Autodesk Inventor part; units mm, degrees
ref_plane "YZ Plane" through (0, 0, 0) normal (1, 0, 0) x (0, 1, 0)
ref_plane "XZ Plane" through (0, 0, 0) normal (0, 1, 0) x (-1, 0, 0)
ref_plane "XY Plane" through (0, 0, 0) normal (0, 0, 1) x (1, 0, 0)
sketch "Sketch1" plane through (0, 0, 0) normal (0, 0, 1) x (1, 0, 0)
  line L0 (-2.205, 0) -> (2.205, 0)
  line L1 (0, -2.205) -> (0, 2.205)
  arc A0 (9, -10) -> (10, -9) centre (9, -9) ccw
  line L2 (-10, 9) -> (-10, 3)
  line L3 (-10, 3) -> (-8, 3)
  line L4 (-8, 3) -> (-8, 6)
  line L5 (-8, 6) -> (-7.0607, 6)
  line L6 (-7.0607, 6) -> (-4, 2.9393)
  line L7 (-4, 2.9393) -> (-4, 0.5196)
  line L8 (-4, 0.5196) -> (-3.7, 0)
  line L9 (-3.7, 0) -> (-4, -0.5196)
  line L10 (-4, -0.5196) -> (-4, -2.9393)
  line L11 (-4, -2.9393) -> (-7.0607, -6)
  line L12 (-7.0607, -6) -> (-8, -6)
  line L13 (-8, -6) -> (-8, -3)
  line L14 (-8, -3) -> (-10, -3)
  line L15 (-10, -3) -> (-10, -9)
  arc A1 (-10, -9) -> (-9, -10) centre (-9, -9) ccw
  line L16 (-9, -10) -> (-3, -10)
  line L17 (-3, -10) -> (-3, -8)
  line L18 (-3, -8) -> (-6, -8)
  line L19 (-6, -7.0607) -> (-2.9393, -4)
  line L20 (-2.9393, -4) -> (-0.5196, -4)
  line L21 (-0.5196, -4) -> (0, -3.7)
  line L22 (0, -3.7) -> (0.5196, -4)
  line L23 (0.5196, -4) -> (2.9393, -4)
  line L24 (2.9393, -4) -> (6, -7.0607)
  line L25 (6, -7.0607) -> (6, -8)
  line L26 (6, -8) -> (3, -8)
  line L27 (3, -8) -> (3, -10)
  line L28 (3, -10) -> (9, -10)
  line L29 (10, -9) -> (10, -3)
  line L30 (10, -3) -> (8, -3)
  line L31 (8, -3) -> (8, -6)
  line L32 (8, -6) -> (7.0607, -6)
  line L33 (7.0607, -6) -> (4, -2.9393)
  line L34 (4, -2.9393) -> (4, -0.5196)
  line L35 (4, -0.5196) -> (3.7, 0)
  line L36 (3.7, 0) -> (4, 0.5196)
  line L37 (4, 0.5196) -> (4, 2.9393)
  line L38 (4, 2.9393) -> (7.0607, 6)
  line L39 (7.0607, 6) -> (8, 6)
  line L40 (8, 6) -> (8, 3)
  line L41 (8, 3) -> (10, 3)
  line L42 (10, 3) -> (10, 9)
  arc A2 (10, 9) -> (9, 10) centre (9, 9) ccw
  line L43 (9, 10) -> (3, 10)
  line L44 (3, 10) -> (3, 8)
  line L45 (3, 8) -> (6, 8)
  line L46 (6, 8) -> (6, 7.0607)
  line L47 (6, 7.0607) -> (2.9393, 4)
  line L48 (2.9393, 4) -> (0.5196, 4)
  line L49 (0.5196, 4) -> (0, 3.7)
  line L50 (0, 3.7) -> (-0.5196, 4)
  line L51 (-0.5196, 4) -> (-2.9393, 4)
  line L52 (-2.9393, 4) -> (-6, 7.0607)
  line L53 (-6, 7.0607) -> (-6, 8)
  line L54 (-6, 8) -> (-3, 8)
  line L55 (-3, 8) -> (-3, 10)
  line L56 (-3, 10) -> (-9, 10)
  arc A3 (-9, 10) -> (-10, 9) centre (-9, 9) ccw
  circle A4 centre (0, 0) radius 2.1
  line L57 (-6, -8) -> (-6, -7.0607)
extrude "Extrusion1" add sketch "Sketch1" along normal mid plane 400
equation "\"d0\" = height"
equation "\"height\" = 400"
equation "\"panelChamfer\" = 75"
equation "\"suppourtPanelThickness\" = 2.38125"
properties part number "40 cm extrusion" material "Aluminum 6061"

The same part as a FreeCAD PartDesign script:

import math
import FreeCAD as App
import Part
import Sketcher
Q = App.Units.Quantity

doc = App.newDocument("Part")
body = doc.addObject("PartDesign::Body", "Body")

# Sketch on XY plane
sketch1 = body.newObject("Sketcher::SketchObject", "Sketch")
sketch1.AttachmentSupport = (doc.getObject("XY_Plane"), [""])
sketch1.MapMode = "FlatFace"
sketch1.addGeometry([
    Part.LineSegment(App.Vector(3, -10, 0), App.Vector(9, -10, 0)),  # 0
    Part.ArcOfCircle(Part.Circle(App.Vector(9, -9, 0), App.Vector(0, 0, 1), 1), math.radians(-90), math.radians(0)),  # 1
    Part.LineSegment(App.Vector(10, -9, 0), App.Vector(10, -3, 0)),  # 2
    Part.LineSegment(App.Vector(10, -3, 0), App.Vector(8, -3, 0)),  # 3
    Part.LineSegment(App.Vector(8, -3, 0), App.Vector(8, -6, 0)),  # 4
    Part.LineSegment(App.Vector(8, -6, 0), App.Vector(7.1, -6, 0)),  # 5
    Part.LineSegment(App.Vector(7.1, -6, 0), App.Vector(4, -2.9, 0)),  # 6
    Part.LineSegment(App.Vector(4, -2.9, 0), App.Vector(4, -0.5, 0)),  # 7
    Part.LineSegment(App.Vector(4, -0.5, 0), App.Vector(3.7, 0, 0)),  # 8
    Part.LineSegment(App.Vector(3.7, 0, 0), App.Vector(4, 0.5, 0)),  # 9
    Part.LineSegment(App.Vector(4, 0.5, 0), App.Vector(4, 2.9, 0)),  # 10
    Part.LineSegment(App.Vector(4, 2.9, 0), App.Vector(7.1, 6, 0)),  # 11
    Part.LineSegment(App.Vector(7.1, 6, 0), App.Vector(8, 6, 0)),  # 12
    Part.LineSegment(App.Vector(8, 6, 0), App.Vector(8, 3, 0)),  # 13
    Part.LineSegment(App.Vector(8, 3, 0), App.Vector(10, 3, 0)),  # 14
    Part.LineSegment(App.Vector(10, 3, 0), App.Vector(10, 9, 0)),  # 15
    Part.ArcOfCircle(Part.Circle(App.Vector(9, 9, 0), App.Vector(0, 0, 1), 1), math.radians(0), math.radians(90)),  # 16
    Part.LineSegment(App.Vector(9, 10, 0), App.Vector(3, 10, 0)),  # 17
    Part.LineSegment(App.Vector(3, 10, 0), App.Vector(3, 8, 0)),  # 18
    Part.LineSegment(App.Vector(3, 8, 0), App.Vector(6, 8, 0)),  # 19
    Part.LineSegment(App.Vector(6, 8, 0), App.Vector(6, 7.1, 0)),  # 20
    Part.LineSegment(App.Vector(6, 7.1, 0), App.Vector(2.9, 4, 0)),  # 21
    Part.LineSegment(App.Vector(2.9, 4, 0), App.Vector(0.5, 4, 0)),  # 22
    Part.LineSegment(App.Vector(0.5, 4, 0), App.Vector(0, 3.7, 0)),  # 23
    Part.LineSegment(App.Vector(0, 3.7, 0), App.Vector(-0.5, 4, 0)),  # 24
    Part.LineSegment(App.Vector(-0.5, 4, 0), App.Vector(-2.9, 4, 0)),  # 25
    Part.LineSegment(App.Vector(-2.9, 4, 0), App.Vector(-6, 7.1, 0)),  # 26
    Part.LineSegment(App.Vector(-6, 7.1, 0), App.Vector(-6, 8, 0)),  # 27
    Part.LineSegment(App.Vector(-6, 8, 0), App.Vector(-3, 8, 0)),  # 28
    Part.LineSegment(App.Vector(-3, 8, 0), App.Vector(-3, 10, 0)),  # 29
    Part.LineSegment(App.Vector(-3, 10, 0), App.Vector(-9, 10, 0)),  # 30
    Part.ArcOfCircle(Part.Circle(App.Vector(-9, 9, 0), App.Vector(0, 0, 1), 1), math.radians(90), math.radians(180)),  # 31
    Part.LineSegment(App.Vector(-10, 9, 0), App.Vector(-10, 3, 0)),  # 32
    Part.LineSegment(App.Vector(-10, 3, 0), App.Vector(-8, 3, 0)),  # 33
    Part.LineSegment(App.Vector(-8, 3, 0), App.Vector(-8, 6, 0)),  # 34
    Part.LineSegment(App.Vector(-8, 6, 0), App.Vector(-7.1, 6, 0)),  # 35
    Part.LineSegment(App.Vector(-7.1, 6, 0), App.Vector(-4, 2.9, 0)),  # 36
    Part.LineSegment(App.Vector(-4, 2.9, 0), App.Vector(-4, 0.5, 0)),  # 37
    Part.LineSegment(App.Vector(-4, 0.5, 0), App.Vector(-3.7, 0, 0)),  # 38
    Part.LineSegment(App.Vector(-3.7, 0, 0), App.Vector(-4, -0.5, 0)),  # 39
    Part.LineSegment(App.Vector(-4, -0.5, 0), App.Vector(-4, -2.9, 0)),  # 40
    Part.LineSegment(App.Vector(-4, -2.9, 0), App.Vector(-7.1, -6, 0)),  # 41
    Part.LineSegment(App.Vector(-7.1, -6, 0), App.Vector(-8, -6, 0)),  # 42
    Part.LineSegment(App.Vector(-8, -6, 0), App.Vector(-8, -3, 0)),  # 43
    Part.LineSegment(App.Vector(-8, -3, 0), App.Vector(-10, -3, 0)),  # 44
    Part.LineSegment(App.Vector(-10, -3, 0), App.Vector(-10, -9, 0)),  # 45
    Part.ArcOfCircle(Part.Circle(App.Vector(-9, -9, 0), App.Vector(0, 0, 1), 1), math.radians(180), math.radians(270)),  # 46
    Part.LineSegment(App.Vector(-9, -10, 0), App.Vector(-3, -10, 0)),  # 47
    Part.LineSegment(App.Vector(-3, -10, 0), App.Vector(-3, -8, 0)),  # 48
    Part.LineSegment(App.Vector(-3, -8, 0), App.Vector(-6, -8, 0)),  # 49
    Part.LineSegment(App.Vector(-6, -8, 0), App.Vector(-6, -7.1, 0)),  # 50
    Part.LineSegment(App.Vector(-6, -7.1, 0), App.Vector(-2.9, -4, 0)),  # 51
    Part.LineSegment(App.Vector(-2.9, -4, 0), App.Vector(-0.5, -4, 0)),  # 52
    Part.LineSegment(App.Vector(-0.5, -4, 0), App.Vector(0, -3.7, 0)),  # 53
    Part.LineSegment(App.Vector(0, -3.7, 0), App.Vector(0.5, -4, 0)),  # 54
    Part.LineSegment(App.Vector(0.5, -4, 0), App.Vector(2.9, -4, 0)),  # 55
    Part.LineSegment(App.Vector(2.9, -4, 0), App.Vector(6, -7.1, 0)),  # 56
    Part.LineSegment(App.Vector(6, -7.1, 0), App.Vector(6, -8, 0)),  # 57
    Part.LineSegment(App.Vector(6, -8, 0), App.Vector(3, -8, 0)),  # 58
    Part.LineSegment(App.Vector(3, -8, 0), App.Vector(3, -10, 0)),  # 59
    Part.Circle(App.Vector(0, 0, 0), App.Vector(0, 0, 1), 2.1),  # 60
], False)
sketch1.addConstraint([
    Sketcher.Constraint("Tangent", 0, 2, 1, 1),
    Sketcher.Constraint("Tangent", 1, 2, 2, 1),
    Sketcher.Constraint("Coincident", 2, 2, 3, 1),
    Sketcher.Constraint("Coincident", 3, 2, 4, 1),
    Sketcher.Constraint("Coincident", 4, 2, 5, 1),
    Sketcher.Constraint("Coincident", 5, 2, 6, 1),
    Sketcher.Constraint("Coincident", 6, 2, 7, 1),
    Sketcher.Constraint("Coincident", 7, 2, 8, 1),
    Sketcher.Constraint("Coincident", 8, 2, 9, 1),
    Sketcher.Constraint("Coincident", 9, 2, 10, 1),
    Sketcher.Constraint("Coincident", 10, 2, 11, 1),
    Sketcher.Constraint("Coincident", 11, 2, 12, 1),
    Sketcher.Constraint("Coincident", 12, 2, 13, 1),
    Sketcher.Constraint("Coincident", 13, 2, 14, 1),
    Sketcher.Constraint("Coincident", 14, 2, 15, 1),
    Sketcher.Constraint("Tangent", 15, 2, 16, 1),
    Sketcher.Constraint("Tangent", 16, 2, 17, 1),
    Sketcher.Constraint("Coincident", 17, 2, 18, 1),
    Sketcher.Constraint("Coincident", 18, 2, 19, 1),
    Sketcher.Constraint("Coincident", 19, 2, 20, 1),
    Sketcher.Constraint("Coincident", 20, 2, 21, 1),
    Sketcher.Constraint("Coincident", 21, 2, 22, 1),
    Sketcher.Constraint("Coincident", 22, 2, 23, 1),
    Sketcher.Constraint("Coincident", 23, 2, 24, 1),
    Sketcher.Constraint("Coincident", 24, 2, 25, 1),
    Sketcher.Constraint("Coincident", 25, 2, 26, 1),
    Sketcher.Constraint("Coincident", 26, 2, 27, 1),
    Sketcher.Constraint("Coincident", 27, 2, 28, 1),
    Sketcher.Constraint("Coincident", 28, 2, 29, 1),
    Sketcher.Constraint("Coincident", 29, 2, 30, 1),
    Sketcher.Constraint("Tangent", 30, 2, 31, 1),
    Sketcher.Constraint("Tangent", 31, 2, 32, 1),
    Sketcher.Constraint("Coincident", 32, 2, 33, 1),
    Sketcher.Constraint("Coincident", 33, 2, 34, 1),
    Sketcher.Constraint("Coincident", 34, 2, 35, 1),
    Sketcher.Constraint("Coincident", 35, 2, 36, 1),
    Sketcher.Constraint("Coincident", 36, 2, 37, 1),
    Sketcher.Constraint("Coincident", 37, 2, 38, 1),
    Sketcher.Constraint("Coincident", 38, 2, 39, 1),
    Sketcher.Constraint("Coincident", 39, 2, 40, 1),
    Sketcher.Constraint("Coincident", 40, 2, 41, 1),
    Sketcher.Constraint("Coincident", 41, 2, 42, 1),
    Sketcher.Constraint("Coincident", 42, 2, 43, 1),
    Sketcher.Constraint("Coincident", 43, 2, 44, 1),
    Sketcher.Constraint("Coincident", 44, 2, 45, 1),
    Sketcher.Constraint("Tangent", 45, 2, 46, 1),
    Sketcher.Constraint("Tangent", 46, 2, 47, 1),
    Sketcher.Constraint("Coincident", 47, 2, 48, 1),
    Sketcher.Constraint("Coincident", 48, 2, 49, 1),
    Sketcher.Constraint("Coincident", 49, 2, 50, 1),
    Sketcher.Constraint("Coincident", 50, 2, 51, 1),
    Sketcher.Constraint("Coincident", 51, 2, 52, 1),
    Sketcher.Constraint("Coincident", 52, 2, 53, 1),
    Sketcher.Constraint("Coincident", 53, 2, 54, 1),
    Sketcher.Constraint("Coincident", 54, 2, 55, 1),
    Sketcher.Constraint("Coincident", 55, 2, 56, 1),
    Sketcher.Constraint("Coincident", 56, 2, 57, 1),
    Sketcher.Constraint("Coincident", 57, 2, 58, 1),
    Sketcher.Constraint("Coincident", 58, 2, 59, 1),
    Sketcher.Constraint("Coincident", 59, 2, 0, 1),
    Sketcher.Constraint("Horizontal", 0),
    Sketcher.Constraint("Vertical", 2),
    Sketcher.Constraint("Horizontal", 3),
    Sketcher.Constraint("Vertical", 4),
    Sketcher.Constraint("Horizontal", 5),
    Sketcher.Constraint("Vertical", 7),
    Sketcher.Constraint("Vertical", 10),
    Sketcher.Constraint("Horizontal", 12),
    Sketcher.Constraint("Vertical", 13),
    Sketcher.Constraint("Horizontal", 14),
    Sketcher.Constraint("Vertical", 15),
    Sketcher.Constraint("Horizontal", 17),
    Sketcher.Constraint("Vertical", 18),
    Sketcher.Constraint("Horizontal", 19),
    Sketcher.Constraint("Vertical", 20),
    Sketcher.Constraint("Horizontal", 22),
    Sketcher.Constraint("Horizontal", 25),
    Sketcher.Constraint("Vertical", 27),
    Sketcher.Constraint("Horizontal", 28),
    Sketcher.Constraint("Vertical", 29),
    Sketcher.Constraint("Horizontal", 30),
    Sketcher.Constraint("Vertical", 32),
    Sketcher.Constraint("Horizontal", 33),
    Sketcher.Constraint("Vertical", 34),
    Sketcher.Constraint("Horizontal", 35),
    Sketcher.Constraint("Vertical", 37),
    Sketcher.Constraint("Vertical", 40),
    Sketcher.Constraint("Horizontal", 42),
    Sketcher.Constraint("Vertical", 43),
    Sketcher.Constraint("Horizontal", 44),
    Sketcher.Constraint("Vertical", 45),
    Sketcher.Constraint("Horizontal", 47),
    Sketcher.Constraint("Vertical", 48),
    Sketcher.Constraint("Horizontal", 49),
    Sketcher.Constraint("Vertical", 50),
    Sketcher.Constraint("Horizontal", 52),
    Sketcher.Constraint("Horizontal", 55),
    Sketcher.Constraint("Vertical", 57),
    Sketcher.Constraint("Horizontal", 58),
    Sketcher.Constraint("Vertical", 59),
    Sketcher.Constraint("Coincident", 60, 3, -1, 1),
    Sketcher.Constraint("Equal", 1, 16),
    Sketcher.Constraint("Equal", 16, 31),
    Sketcher.Constraint("Equal", 31, 46),
    Sketcher.Constraint("Symmetric", 1, 3, 31, 3, -1, 1),
    Sketcher.Constraint("Symmetric", 16, 3, 46, 3, -1, 1),
    Sketcher.Constraint("Symmetric", 3, 2, 33, 2, -1, 1),
    Sketcher.Constraint("Symmetric", 5, 2, 35, 2, -1, 1),
    Sketcher.Constraint("Symmetric", 6, 2, 36, 2, -1, 1),
    Sketcher.Constraint("Symmetric", 8, 2, 38, 2, -1, 1),
    Sketcher.Constraint("Symmetric", 9, 2, 39, 2, -1, 1),
    Sketcher.Constraint("Symmetric", 11, 2, 41, 2, -1, 1),
    Sketcher.Constraint("Symmetric", 13, 2, 43, 2, -1, 1),
    Sketcher.Constraint("Symmetric", 18, 2, 48, 2, -1, 1),
    Sketcher.Constraint("Symmetric", 20, 2, 50, 2, -1, 1),
    Sketcher.Constraint("Symmetric", 21, 2, 51, 2, -1, 1),
    Sketcher.Constraint("Symmetric", 23, 2, 53, 2, -1, 1),
    Sketcher.Constraint("Symmetric", 24, 2, 54, 2, -1, 1),
    Sketcher.Constraint("Symmetric", 26, 2, 56, 2, -1, 1),
    Sketcher.Constraint("Symmetric", 28, 2, 58, 2, -1, 1),
    Sketcher.Constraint("Symmetric", 16, 3, 31, 3, -2),
    Sketcher.Constraint("Symmetric", 22, 2, 24, 2, -2),
    Sketcher.Constraint("Symmetric", 20, 2, 26, 2, -2),
    Sketcher.Constraint("Symmetric", 18, 2, 28, 2, -2),
    Sketcher.Constraint("Symmetric", 13, 2, 33, 2, -2),
    Sketcher.Constraint("Symmetric", 11, 2, 35, 2, -2),
    Sketcher.Constraint("Symmetric", 10, 2, 36, 2, -2),
    Sketcher.Constraint("PointOnObject", 8, 2, -1),
    Sketcher.Constraint("PointOnObject", 23, 2, -2),
    Sketcher.Constraint("Perpendicular", 6, 11),
    Sketcher.Constraint("Parallel", 11, 21),
    Sketcher.Constraint("Perpendicular", 8, 23),
    Sketcher.Constraint("Perpendicular", 9, 24),
    Sketcher.Constraint("Perpendicular", 21, 26),
    Sketcher.Constraint("Perpendicular", 23, 38),
    Sketcher.Constraint("Perpendicular", 36, 41),
    Sketcher.Constraint("Perpendicular", 38, 53),
    Sketcher.Constraint("Perpendicular", 51, 56),
    Sketcher.Constraint("Equal", 47, 2),
    Sketcher.Constraint("Equal", 58, 4),
    Sketcher.Constraint("Equal", 55, 7),
    Sketcher.Constraint("Equal", 44, 18),
    Sketcher.Constraint("Equal", 42, 20),
    Sketcher.Constraint("Equal", 11, 21),
    Sketcher.Constraint("Equal", 9, 23),
    Sketcher.Constraint("Radius", 1, 1.0),
    Sketcher.Constraint("Diameter", 60, 4.2),
    Sketcher.Constraint("DistanceX", 0, 1, 0, 2, 6.0),
    Sketcher.Constraint("DistanceX", 3, 2, 3, 1, 2.0),
    Sketcher.Constraint("DistanceX", 19, 1, 19, 2, 3.0),
    Sketcher.Constraint("Angle", 8, Q("120.0007 deg")),
    Sketcher.Constraint("DistanceX", -1, 1, 1, 3, 9.0),
    Sketcher.Constraint("DistanceX", -1, 1, 6, 2, 4.0),
    Sketcher.Constraint("Distance", 8, 0.6),
    Sketcher.Constraint("DistanceX", 5, 2, 5, 1, 0.9393),
])
pad1 = body.newObject("PartDesign::Pad", "Pad")
pad1.Profile = sketch1
pad1.Length = 400
pad1.Midplane = True

doc.recompute()
